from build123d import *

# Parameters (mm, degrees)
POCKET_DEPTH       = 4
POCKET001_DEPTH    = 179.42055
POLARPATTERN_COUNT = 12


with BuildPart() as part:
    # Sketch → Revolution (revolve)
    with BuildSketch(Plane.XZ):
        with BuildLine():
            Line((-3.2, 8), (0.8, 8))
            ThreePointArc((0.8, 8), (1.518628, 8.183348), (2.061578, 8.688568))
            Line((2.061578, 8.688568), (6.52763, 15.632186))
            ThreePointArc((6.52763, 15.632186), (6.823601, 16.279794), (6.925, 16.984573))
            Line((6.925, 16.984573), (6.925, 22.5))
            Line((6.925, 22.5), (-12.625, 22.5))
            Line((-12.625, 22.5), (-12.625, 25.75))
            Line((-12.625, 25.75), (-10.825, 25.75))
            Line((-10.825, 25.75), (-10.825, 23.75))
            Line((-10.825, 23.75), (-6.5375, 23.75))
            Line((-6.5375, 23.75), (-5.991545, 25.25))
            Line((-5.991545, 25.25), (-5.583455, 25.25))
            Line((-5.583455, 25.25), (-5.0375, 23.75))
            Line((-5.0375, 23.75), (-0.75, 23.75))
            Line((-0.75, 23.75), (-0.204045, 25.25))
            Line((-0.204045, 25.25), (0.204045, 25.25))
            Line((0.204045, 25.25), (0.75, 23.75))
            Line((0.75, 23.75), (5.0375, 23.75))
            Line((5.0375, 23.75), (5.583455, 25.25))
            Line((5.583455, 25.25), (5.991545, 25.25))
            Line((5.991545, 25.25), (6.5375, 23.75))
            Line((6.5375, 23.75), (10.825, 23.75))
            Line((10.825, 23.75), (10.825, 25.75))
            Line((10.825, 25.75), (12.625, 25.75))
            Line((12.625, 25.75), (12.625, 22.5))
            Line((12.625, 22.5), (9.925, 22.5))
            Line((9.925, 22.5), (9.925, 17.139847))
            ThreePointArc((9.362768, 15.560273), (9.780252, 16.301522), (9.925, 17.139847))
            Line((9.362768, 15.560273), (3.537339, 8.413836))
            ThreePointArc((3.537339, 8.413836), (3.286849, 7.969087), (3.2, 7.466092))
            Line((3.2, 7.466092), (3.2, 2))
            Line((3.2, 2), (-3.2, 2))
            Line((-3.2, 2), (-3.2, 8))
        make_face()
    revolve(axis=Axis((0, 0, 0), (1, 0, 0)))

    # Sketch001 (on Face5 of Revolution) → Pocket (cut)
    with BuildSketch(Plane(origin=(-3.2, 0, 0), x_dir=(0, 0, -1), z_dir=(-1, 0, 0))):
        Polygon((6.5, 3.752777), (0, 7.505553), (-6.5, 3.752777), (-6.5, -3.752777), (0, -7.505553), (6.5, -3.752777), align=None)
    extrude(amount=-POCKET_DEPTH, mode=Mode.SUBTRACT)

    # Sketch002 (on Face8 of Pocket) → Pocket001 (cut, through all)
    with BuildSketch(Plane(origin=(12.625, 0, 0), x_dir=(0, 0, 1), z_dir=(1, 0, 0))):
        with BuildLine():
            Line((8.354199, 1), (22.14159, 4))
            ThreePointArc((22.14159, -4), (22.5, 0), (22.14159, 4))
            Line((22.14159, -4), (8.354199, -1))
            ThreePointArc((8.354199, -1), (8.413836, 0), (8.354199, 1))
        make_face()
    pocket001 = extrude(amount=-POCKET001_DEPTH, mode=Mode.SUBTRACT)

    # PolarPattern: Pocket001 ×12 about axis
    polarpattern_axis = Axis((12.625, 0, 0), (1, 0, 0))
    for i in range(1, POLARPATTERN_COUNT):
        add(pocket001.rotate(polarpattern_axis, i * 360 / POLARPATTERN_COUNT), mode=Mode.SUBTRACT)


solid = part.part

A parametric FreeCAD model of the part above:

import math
import FreeCAD as App
import Part
import Sketcher
Q = App.Units.Quantity


def add_polygon(sketch, points):
    """Adds a closed chain of lines whose ends are joined by coincident constraints."""
    first, n = sketch.GeometryCount, len(points)
    for a, b in zip(points, points[1:] + points[:1]):
        sketch.addGeometry(Part.LineSegment(App.Vector(*a, 0), App.Vector(*b, 0)), False)
    for i in range(n):
        sketch.addConstraint(Sketcher.Constraint("Coincident", first + i, 2, first + (i + 1) % n, 1))

doc = App.newDocument("Part")
params = doc.addObject("Spreadsheet::Sheet", "Params")
for row, (alias, value) in enumerate([
    ("sketch1_radius", "1.499999 mm"),
    ("sketch1_width", "4 mm"),
    ("sketch1_height", "6 mm"),
    ("sketch1_height2", "2 mm"),
    ("sketch1_width2", "6.4 mm"),
    ("revolution_angle", "360 deg"),
    ("pocket1_length", "4 mm"),
    ("sketch3_length", "14.110002 mm"),
], start=1):
    params.set(f"A{row}", alias)
    params.set(f"B{row}", "=" + value)
    params.setAlias(f"B{row}", alias)

body = doc.addObject("PartDesign::Body", "Body")

sketch1 = doc.addObject("Sketcher::SketchObject", "Sketch")
body.addObject(sketch1)
sketch1.AttachmentSupport = (doc.XZ_Plane, [""])
sketch1.MapMode = "FlatFace"
sketch1.addGeometry(Part.LineSegment(App.Vector(0.8, 8, 0), App.Vector(-3.2, 8, 0)), False)
sketch1.addGeometry(Part.LineSegment(App.Vector(-3.2, 8, 0), App.Vector(-3.2, 2, 0)), False)
sketch1.addGeometry(Part.LineSegment(App.Vector(-3.2, 2, 0), App.Vector(3.2, 2, 0)), False)
sketch1.addGeometry(Part.LineSegment(App.Vector(3.2, 2, 0), App.Vector(3.2, 7.47, 0)), False)
sketch1.addGeometry(Part.ArcOfCircle(Part.Circle(App.Vector(4.7, 7.47, 0), App.Vector(0, 0, 1), 1.5), math.radians(141), math.radians(180)), False)
sketch1.addGeometry(Part.LineSegment(App.Vector(3.54, 8.41, 0), App.Vector(9.36, 15.56, 0)), False)
sketch1.addGeometry(Part.ArcOfCircle(Part.Circle(App.Vector(7.43, 17.14, 0), App.Vector(0, 0, 1), 2.5), math.radians(-39), math.radians(0)), False)
sketch1.addGeometry(Part.LineSegment(App.Vector(9.93, 17.14, 0), App.Vector(9.93, 22.5, 0)), False)
sketch1.addGeometry(Part.LineSegment(App.Vector(9.93, 22.5, 0), App.Vector(12.62, 22.5, 0)), False)
sketch1.addGeometry(Part.LineSegment(App.Vector(12.62, 22.5, 0), App.Vector(12.62, 25.75, 0)), False)
sketch1.addGeometry(Part.LineSegment(App.Vector(12.62, 25.75, 0), App.Vector(10.82, 25.75, 0)), False)
sketch1.addGeometry(Part.LineSegment(App.Vector(10.82, 25.75, 0), App.Vector(10.82, 23.75, 0)), False)
sketch1.addGeometry(Part.LineSegment(App.Vector(10.82, 23.75, 0), App.Vector(6.54, 23.75, 0)), False)
sketch1.addGeometry(Part.LineSegment(App.Vector(6.54, 23.75, 0), App.Vector(5.99, 25.25, 0)), False)
sketch1.addGeometry(Part.LineSegment(App.Vector(5.99, 25.25, 0), App.Vector(5.58, 25.25, 0)), False)
sketch1.addGeometry(Part.LineSegment(App.Vector(5.58, 25.25, 0), App.Vector(5.04, 23.75, 0)), False)
sketch1.addGeometry(Part.LineSegment(App.Vector(5.04, 23.75, 0), App.Vector(0.75, 23.75, 0)), False)
sketch1.addGeometry(Part.LineSegment(App.Vector(0.75, 23.75, 0), App.Vector(0.2, 25.25, 0)), False)
sketch1.addGeometry(Part.LineSegment(App.Vector(0.2, 25.25, 0), App.Vector(-0.2, 25.25, 0)), False)
sketch1.addGeometry(Part.LineSegment(App.Vector(-0.2, 25.25, 0), App.Vector(-0.75, 23.75, 0)), False)
sketch1.addGeometry(Part.LineSegment(App.Vector(-0.75, 23.75, 0), App.Vector(-5.04, 23.75, 0)), False)
sketch1.addGeometry(Part.LineSegment(App.Vector(-5.04, 23.75, 0), App.Vector(-5.58, 25.25, 0)), False)
sketch1.addGeometry(Part.LineSegment(App.Vector(-5.58, 25.25, 0), App.Vector(-5.99, 25.25, 0)), False)
sketch1.addGeometry(Part.LineSegment(App.Vector(-5.99, 25.25, 0), App.Vector(-6.54, 23.75, 0)), False)
sketch1.addGeometry(Part.LineSegment(App.Vector(-6.54, 23.75, 0), App.Vector(-10.82, 23.75, 0)), False)
sketch1.addGeometry(Part.LineSegment(App.Vector(-10.82, 23.75, 0), App.Vector(-10.82, 25.75, 0)), False)
sketch1.addGeometry(Part.LineSegment(App.Vector(-10.82, 25.75, 0), App.Vector(-12.62, 25.75, 0)), False)
sketch1.addGeometry(Part.LineSegment(App.Vector(-12.62, 25.75, 0), App.Vector(-12.62, 22.5, 0)), False)
sketch1.addGeometry(Part.LineSegment(App.Vector(-12.62, 22.5, 0), App.Vector(6.92, 22.5, 0)), False)
sketch1.addGeometry(Part.LineSegment(App.Vector(6.92, 22.5, 0), App.Vector(6.92, 16.98, 0)), False)
sketch1.addGeometry(Part.ArcOfCircle(Part.Circle(App.Vector(4.42, 16.98, 0), App.Vector(0, 0, 1), 2.5), math.radians(-33), math.radians(0)), False)
sketch1.addGeometry(Part.LineSegment(App.Vector(6.53, 15.63, 0), App.Vector(2.06, 8.69, 0)), False)
sketch1.addGeometry(Part.ArcOfCircle(Part.Circle(App.Vector(0.8, 9.5, 0), App.Vector(0, 0, 1), 1.5), math.radians(-90), math.radians(-33)), False)
sketch1.addConstraint(Sketcher.Constraint("Coincident", 0, 2, 1, 1))
sketch1.addConstraint(Sketcher.Constraint("Coincident", 1, 2, 2, 1))
sketch1.addConstraint(Sketcher.Constraint("Coincident", 2, 2, 3, 1))
sketch1.addConstraint(Sketcher.Constraint("Tangent", 3, 2, 4, 2))
sketch1.addConstraint(Sketcher.Constraint("Tangent", 4, 1, 5, 1))
sketch1.addConstraint(Sketcher.Constraint("Tangent", 5, 2, 6, 1))
sketch1.addConstraint(Sketcher.Constraint("Tangent", 6, 2, 7, 1))
sketch1.addConstraint(Sketcher.Constraint("Coincident", 7, 2, 8, 1))
sketch1.addConstraint(Sketcher.Constraint("Coincident", 8, 2, 9, 1))
sketch1.addConstraint(Sketcher.Constraint("Coincident", 9, 2, 10, 1))
sketch1.addConstraint(Sketcher.Constraint("Coincident", 10, 2, 11, 1))
sketch1.addConstraint(Sketcher.Constraint("Coincident", 11, 2, 12, 1))
sketch1.addConstraint(Sketcher.Constraint("Coincident", 12, 2, 13, 1))
sketch1.addConstraint(Sketcher.Constraint("Coincident", 13, 2, 14, 1))
sketch1.addConstraint(Sketcher.Constraint("Coincident", 14, 2, 15, 1))
sketch1.addConstraint(Sketcher.Constraint("Coincident", 15, 2, 16, 1))
sketch1.addConstraint(Sketcher.Constraint("Coincident", 16, 2, 17, 1))
sketch1.addConstraint(Sketcher.Constraint("Coincident", 17, 2, 18, 1))
sketch1.addConstraint(Sketcher.Constraint("Coincident", 18, 2, 19, 1))
sketch1.addConstraint(Sketcher.Constraint("Coincident", 19, 2, 20, 1))
sketch1.addConstraint(Sketcher.Constraint("Coincident", 20, 2, 21, 1))
sketch1.addConstraint(Sketcher.Constraint("Coincident", 21, 2, 22, 1))
sketch1.addConstraint(Sketcher.Constraint("Coincident", 22, 2, 23, 1))
sketch1.addConstraint(Sketcher.Constraint("Coincident", 23, 2, 24, 1))
sketch1.addConstraint(Sketcher.Constraint("Coincident", 24, 2, 25, 1))
sketch1.addConstraint(Sketcher.Constraint("Coincident", 25, 2, 26, 1))
sketch1.addConstraint(Sketcher.Constraint("Coincident", 26, 2, 27, 1))
sketch1.addConstraint(Sketcher.Constraint("Coincident", 27, 2, 28, 1))
sketch1.addConstraint(Sketcher.Constraint("Coincident", 28, 2, 29, 1))
sketch1.addConstraint(Sketcher.Constraint("Tangent", 29, 2, 30, 2))
sketch1.addConstraint(Sketcher.Constraint("Tangent", 30, 1, 31, 1))
sketch1.addConstraint(Sketcher.Constraint("Tangent", 31, 2, 32, 2))
sketch1.addConstraint(Sketcher.Constraint("Tangent", 32, 1, 0, 1))
sketch1.addConstraint(Sketcher.Constraint("Horizontal", 0))
sketch1.addConstraint(Sketcher.Constraint("Vertical", 1))
sketch1.addConstraint(Sketcher.Constraint("Horizontal", 2))
sketch1.addConstraint(Sketcher.Constraint("Vertical", 3))
sketch1.addConstraint(Sketcher.Constraint("Vertical", 7))
sketch1.addConstraint(Sketcher.Constraint("Horizontal", 8))
sketch1.addConstraint(Sketcher.Constraint("Vertical", 9))
sketch1.addConstraint(Sketcher.Constraint("Horizontal", 10))
sketch1.addConstraint(Sketcher.Constraint("Vertical", 11))
sketch1.addConstraint(Sketcher.Constraint("Horizontal", 12))
sketch1.addConstraint(Sketcher.Constraint("Horizontal", 14))
sketch1.addConstraint(Sketcher.Constraint("Horizontal", 16))
sketch1.addConstraint(Sketcher.Constraint("Horizontal", 18))
sketch1.addConstraint(Sketcher.Constraint("Horizontal", 20))
sketch1.addConstraint(Sketcher.Constraint("Horizontal", 22))
sketch1.addConstraint(Sketcher.Constraint("Horizontal", 24))
sketch1.addConstraint(Sketcher.Constraint("Vertical", 25))
sketch1.addConstraint(Sketcher.Constraint("Horizontal", 26))
sketch1.addConstraint(Sketcher.Constraint("Vertical", 27))
sketch1.addConstraint(Sketcher.Constraint("Horizontal", 28))
sketch1.addConstraint(Sketcher.Constraint("Vertical", 29))
sketch1.addConstraint(Sketcher.Constraint("Symmetric", 16, 2, 19, 2, -2))
sketch1.addConstraint(Sketcher.Constraint("Symmetric", 14, 2, 21, 2, -2))
sketch1.addConstraint(Sketcher.Constraint("Symmetric", 12, 2, 23, 2, -2))
sketch1.addConstraint(Sketcher.Constraint("Symmetric", 10, 2, 25, 2, -2))
sketch1.addConstraint(Sketcher.Constraint("Symmetric", 8, 2, 27, 2, -2))
sketch1.addConstraint(Sketcher.Constraint("Parallel", 13, 17))
sketch1.addConstraint(Sketcher.Constraint("Parallel", 15, 19))
sketch1.addConstraint(Sketcher.Constraint("Parallel", 17, 21))
sketch1.addConstraint(Sketcher.Constraint("Parallel", 19, 23))
sketch1.addConstraint(Sketcher.Constraint("Horizontal", 12, 2, 15, 2))
sketch1.addConstraint(Sketcher.Constraint("Horizontal", 14, 2, 17, 2))
sketch1.addConstraint(Sketcher.Constraint("Equal", 12, 16))
sketch1.addConstraint(Sketcher.Constraint("Equal", 14, 18))
sketch1.addConstraint(Sketcher.Constraint("Equal", 16, 20))
sketch1.addConstraint(Sketcher.Constraint("Radius", 4, Q("1.499999 mm")))
sketch1.addConstraint(Sketcher.Constraint("DistanceX", 0, 2, 0, 1, Q("4 mm")))
sketch1.addConstraint(Sketcher.Constraint("DistanceY", 1, 2, 1, 1, Q("6 mm")))
sketch1.addConstraint(Sketcher.Constraint("DistanceY", 11, 2, 11, 1, Q("2 mm")))
sketch1.addConstraint(Sketcher.Constraint("Angle", 13, Q("109.999988 deg")))
sketch1.addConstraint(Sketcher.Constraint("DistanceX", 2, 1, 2, 2, Q("6.4 mm")))
sketch1.addConstraint(Sketcher.Constraint("DistanceX", 8, 1, 8, 2, Q("2.7 mm")))
sketch1.addConstraint(Sketcher.Constraint("DistanceX", 10, 2, 10, 1, Q("1.8 mm")))
sketch1.addConstraint(Sketcher.Constraint("DistanceY", -1, 1, 0, 2, Q("8 mm")))
sketch1.addConstraint(Sketcher.Constraint("DistanceX", 28, 2, 7, 2, Q("3 mm")))
sketch1.addConstraint(Sketcher.Constraint("DistanceX", 28, 1, 28, 2, Q("19.55 mm")))
sketch1.addConstraint(Sketcher.Constraint("DistanceY", 9, 1, 9, 2, Q("3.25 mm")))
sketch1.addConstraint(Sketcher.Constraint("DistanceX", -1, 1, 4, 3, Q("4.699999 mm")))
sketch1.addConstraint(Sketcher.Constraint("DistanceY", -1, 1, 7, 2, Q("22.5 mm")))
sketch1.addConstraint(Sketcher.Constraint("DistanceY", 12, 2, 13, 2, Q("1.5 mm")))
sketch1.addConstraint(Sketcher.Constraint("DistanceX", 15, 2, 12, 2, Q("1.5 mm")))
sketch1.addConstraint(Sketcher.Constraint("Radius", 6, Q("2.499995 mm")))
sketch1.addConstraint(Sketcher.Constraint("Radius", 30, Q("2.500008 mm")))
sketch1.addConstraint(Sketcher.Constraint("Radius", 32, Q("1.500004 mm")))
sketch1.addConstraint(Sketcher.Constraint("DistanceY", 3, 1, 3, 2, Q("5.466092 mm")))
sketch1.addConstraint(Sketcher.Constraint("DistanceY", 5, 2, 30, 3, Q("1.424301 mm")))
sketch1.addConstraint(Sketcher.Constraint("DistanceY", 7, 1, 7, 2, Q("5.360153 mm")))
sketch1.setExpression("Constraints[68]", "Params.sketch1_radius")
sketch1.setExpression("Constraints[69]", "Params.sketch1_width")
sketch1.setExpression("Constraints[70]", "Params.sketch1_height")
sketch1.setExpression("Constraints[71]", "Params.sketch1_height2")
sketch1.setExpression("Constraints[73]", "Params.sketch1_width2")
revolution = doc.addObject("PartDesign::Revolution", "Revolution")
body.addObject(revolution)
revolution.Profile = sketch1
revolution.ReferenceAxis = (sketch1, ["H_Axis"])
revolution.setExpression("Angle", "Params.revolution_angle")

sketch2 = doc.addObject("Sketcher::SketchObject", "Sketch001")
body.addObject(sketch2)
sketch2.AttachmentSupport = (doc.YZ_Plane, [""])
sketch2.MapMode = "FlatFace"
sketch2.AttachmentOffset = App.Placement(App.Vector(0, 0, -3.2), App.Rotation())
add_polygon(sketch2, [(-4, -6), (-8, 0), (-4, 6), (4, 6), (8, 0), (4, -6)])
sketch2.addConstraint(Sketcher.Constraint("Horizontal", 2))
sketch2.addConstraint(Sketcher.Constraint("Horizontal", 5))
sketch2.addConstraint(Sketcher.Constraint("Symmetric", 0, 2, 3, 2, -1, 1))
sketch2.addConstraint(Sketcher.Constraint("Symmetric", 1, 2, 4, 2, -1, 1))
sketch2.addConstraint(Sketcher.Constraint("PointOnObject", 0, 2, -1))
sketch2.addConstraint(Sketcher.Constraint("Parallel", 0, 3))
sketch2.addConstraint(Sketcher.Constraint("Vertical", 2, 2, 4, 2))
sketch2.addConstraint(Sketcher.Constraint("Angle", 0, Q("119.999995 deg")))
sketch2.addConstraint(Sketcher.Constraint("DistanceY", 4, 2, 2, 2, Q("13 mm")))
sketch2.addConstraint(Sketcher.Constraint("DistanceX", 2, 1, 2, 2, Q("7.505554 mm")))
pocket1 = doc.addObject("PartDesign::Pocket", "Pocket")
body.addObject(pocket1)
pocket1.Profile = sketch2
pocket1.setExpression("Length", "Params.pocket1_length")
pocket1.Reversed = True

sketch3 = doc.addObject("Sketcher::SketchObject", "Sketch002")
body.addObject(sketch3)
sketch3.AttachmentSupport = (doc.YZ_Plane, [""])
sketch3.MapMode = "FlatFace"
sketch3.AttachmentOffset = App.Placement(App.Vector(0, 0, 12.625), App.Rotation())
sketch3.addGeometry(Part.LineSegment(App.Vector(-4, 22.1, 0), App.Vector(-1, 8.4, 0)), False)
sketch3.addGeometry(Part.ArcOfCircle(Part.Circle(App.Vector(0, 0, 0), App.Vector(0, 0, 1), 8.4), math.radians(83.17), math.radians(96.83)), False)
sketch3.addGeometry(Part.LineSegment(App.Vector(1, 8.4, 0), App.Vector(4, 22.1, 0)), False)
sketch3.addGeometry(Part.ArcOfCircle(Part.Circle(App.Vector(0, 0, 0), App.Vector(0, 0, 1), 22.5), math.radians(80), math.radians(100)), False)
sketch3.addConstraint(Sketcher.Constraint("Coincident", 0, 2, 1, 2))
sketch3.addConstraint(Sketcher.Constraint("Coincident", 1, 1, 2, 1))
sketch3.addConstraint(Sketcher.Constraint("Coincident", 2, 2, 3, 1))
sketch3.addConstraint(Sketcher.Constraint("Coincident", 3, 2, 0, 1))
sketch3.addConstraint(Sketcher.Constraint("Symmetric", 0, 2, 1, 1, -2))
sketch3.addConstraint(Sketcher.Constraint("Symmetric", 2, 2, 3, 2, -2))
sketch3.addConstraint(Sketcher.Constraint("DistanceX", 0, 2, -1, 1, Q("1 mm")))
sketch3.addConstraint(Sketcher.Constraint("DistanceX", -1, 1, 2, 2, Q("4 mm")))
sketch3.addConstraint(Sketcher.Constraint("Distance", 0, Q("14.110002 mm")))
sketch3.addConstraint(Sketcher.Constraint("Radius", 3, Q("22.500011 mm")))
sketch3.addConstraint(Sketcher.Constraint("Radius", 1, Q("8.413875 mm")))
sketch3.addConstraint(Sketcher.Constraint("DistanceY", -1, 1, 0, 2, Q("8.354199 mm")))
sketch3.setExpression("Constraints[8]", "Params.sketch3_length")
pocket2 = doc.addObject("PartDesign::Pocket", "Pocket001")
body.addObject(pocket2)
pocket2.Profile = sketch3
pocket2.Type = "ThroughAll"
doc.recompute()

polarpattern = doc.addObject("PartDesign::PolarPattern", "PolarPattern")
body.addObject(polarpattern)
polarpattern.Originals = [pocket2]
polarpattern.Axis = (doc.X_Axis, [""])
polarpattern.Angle = 360
polarpattern.Occurrences = 12
body.Tip = polarpattern

doc.recompute()
